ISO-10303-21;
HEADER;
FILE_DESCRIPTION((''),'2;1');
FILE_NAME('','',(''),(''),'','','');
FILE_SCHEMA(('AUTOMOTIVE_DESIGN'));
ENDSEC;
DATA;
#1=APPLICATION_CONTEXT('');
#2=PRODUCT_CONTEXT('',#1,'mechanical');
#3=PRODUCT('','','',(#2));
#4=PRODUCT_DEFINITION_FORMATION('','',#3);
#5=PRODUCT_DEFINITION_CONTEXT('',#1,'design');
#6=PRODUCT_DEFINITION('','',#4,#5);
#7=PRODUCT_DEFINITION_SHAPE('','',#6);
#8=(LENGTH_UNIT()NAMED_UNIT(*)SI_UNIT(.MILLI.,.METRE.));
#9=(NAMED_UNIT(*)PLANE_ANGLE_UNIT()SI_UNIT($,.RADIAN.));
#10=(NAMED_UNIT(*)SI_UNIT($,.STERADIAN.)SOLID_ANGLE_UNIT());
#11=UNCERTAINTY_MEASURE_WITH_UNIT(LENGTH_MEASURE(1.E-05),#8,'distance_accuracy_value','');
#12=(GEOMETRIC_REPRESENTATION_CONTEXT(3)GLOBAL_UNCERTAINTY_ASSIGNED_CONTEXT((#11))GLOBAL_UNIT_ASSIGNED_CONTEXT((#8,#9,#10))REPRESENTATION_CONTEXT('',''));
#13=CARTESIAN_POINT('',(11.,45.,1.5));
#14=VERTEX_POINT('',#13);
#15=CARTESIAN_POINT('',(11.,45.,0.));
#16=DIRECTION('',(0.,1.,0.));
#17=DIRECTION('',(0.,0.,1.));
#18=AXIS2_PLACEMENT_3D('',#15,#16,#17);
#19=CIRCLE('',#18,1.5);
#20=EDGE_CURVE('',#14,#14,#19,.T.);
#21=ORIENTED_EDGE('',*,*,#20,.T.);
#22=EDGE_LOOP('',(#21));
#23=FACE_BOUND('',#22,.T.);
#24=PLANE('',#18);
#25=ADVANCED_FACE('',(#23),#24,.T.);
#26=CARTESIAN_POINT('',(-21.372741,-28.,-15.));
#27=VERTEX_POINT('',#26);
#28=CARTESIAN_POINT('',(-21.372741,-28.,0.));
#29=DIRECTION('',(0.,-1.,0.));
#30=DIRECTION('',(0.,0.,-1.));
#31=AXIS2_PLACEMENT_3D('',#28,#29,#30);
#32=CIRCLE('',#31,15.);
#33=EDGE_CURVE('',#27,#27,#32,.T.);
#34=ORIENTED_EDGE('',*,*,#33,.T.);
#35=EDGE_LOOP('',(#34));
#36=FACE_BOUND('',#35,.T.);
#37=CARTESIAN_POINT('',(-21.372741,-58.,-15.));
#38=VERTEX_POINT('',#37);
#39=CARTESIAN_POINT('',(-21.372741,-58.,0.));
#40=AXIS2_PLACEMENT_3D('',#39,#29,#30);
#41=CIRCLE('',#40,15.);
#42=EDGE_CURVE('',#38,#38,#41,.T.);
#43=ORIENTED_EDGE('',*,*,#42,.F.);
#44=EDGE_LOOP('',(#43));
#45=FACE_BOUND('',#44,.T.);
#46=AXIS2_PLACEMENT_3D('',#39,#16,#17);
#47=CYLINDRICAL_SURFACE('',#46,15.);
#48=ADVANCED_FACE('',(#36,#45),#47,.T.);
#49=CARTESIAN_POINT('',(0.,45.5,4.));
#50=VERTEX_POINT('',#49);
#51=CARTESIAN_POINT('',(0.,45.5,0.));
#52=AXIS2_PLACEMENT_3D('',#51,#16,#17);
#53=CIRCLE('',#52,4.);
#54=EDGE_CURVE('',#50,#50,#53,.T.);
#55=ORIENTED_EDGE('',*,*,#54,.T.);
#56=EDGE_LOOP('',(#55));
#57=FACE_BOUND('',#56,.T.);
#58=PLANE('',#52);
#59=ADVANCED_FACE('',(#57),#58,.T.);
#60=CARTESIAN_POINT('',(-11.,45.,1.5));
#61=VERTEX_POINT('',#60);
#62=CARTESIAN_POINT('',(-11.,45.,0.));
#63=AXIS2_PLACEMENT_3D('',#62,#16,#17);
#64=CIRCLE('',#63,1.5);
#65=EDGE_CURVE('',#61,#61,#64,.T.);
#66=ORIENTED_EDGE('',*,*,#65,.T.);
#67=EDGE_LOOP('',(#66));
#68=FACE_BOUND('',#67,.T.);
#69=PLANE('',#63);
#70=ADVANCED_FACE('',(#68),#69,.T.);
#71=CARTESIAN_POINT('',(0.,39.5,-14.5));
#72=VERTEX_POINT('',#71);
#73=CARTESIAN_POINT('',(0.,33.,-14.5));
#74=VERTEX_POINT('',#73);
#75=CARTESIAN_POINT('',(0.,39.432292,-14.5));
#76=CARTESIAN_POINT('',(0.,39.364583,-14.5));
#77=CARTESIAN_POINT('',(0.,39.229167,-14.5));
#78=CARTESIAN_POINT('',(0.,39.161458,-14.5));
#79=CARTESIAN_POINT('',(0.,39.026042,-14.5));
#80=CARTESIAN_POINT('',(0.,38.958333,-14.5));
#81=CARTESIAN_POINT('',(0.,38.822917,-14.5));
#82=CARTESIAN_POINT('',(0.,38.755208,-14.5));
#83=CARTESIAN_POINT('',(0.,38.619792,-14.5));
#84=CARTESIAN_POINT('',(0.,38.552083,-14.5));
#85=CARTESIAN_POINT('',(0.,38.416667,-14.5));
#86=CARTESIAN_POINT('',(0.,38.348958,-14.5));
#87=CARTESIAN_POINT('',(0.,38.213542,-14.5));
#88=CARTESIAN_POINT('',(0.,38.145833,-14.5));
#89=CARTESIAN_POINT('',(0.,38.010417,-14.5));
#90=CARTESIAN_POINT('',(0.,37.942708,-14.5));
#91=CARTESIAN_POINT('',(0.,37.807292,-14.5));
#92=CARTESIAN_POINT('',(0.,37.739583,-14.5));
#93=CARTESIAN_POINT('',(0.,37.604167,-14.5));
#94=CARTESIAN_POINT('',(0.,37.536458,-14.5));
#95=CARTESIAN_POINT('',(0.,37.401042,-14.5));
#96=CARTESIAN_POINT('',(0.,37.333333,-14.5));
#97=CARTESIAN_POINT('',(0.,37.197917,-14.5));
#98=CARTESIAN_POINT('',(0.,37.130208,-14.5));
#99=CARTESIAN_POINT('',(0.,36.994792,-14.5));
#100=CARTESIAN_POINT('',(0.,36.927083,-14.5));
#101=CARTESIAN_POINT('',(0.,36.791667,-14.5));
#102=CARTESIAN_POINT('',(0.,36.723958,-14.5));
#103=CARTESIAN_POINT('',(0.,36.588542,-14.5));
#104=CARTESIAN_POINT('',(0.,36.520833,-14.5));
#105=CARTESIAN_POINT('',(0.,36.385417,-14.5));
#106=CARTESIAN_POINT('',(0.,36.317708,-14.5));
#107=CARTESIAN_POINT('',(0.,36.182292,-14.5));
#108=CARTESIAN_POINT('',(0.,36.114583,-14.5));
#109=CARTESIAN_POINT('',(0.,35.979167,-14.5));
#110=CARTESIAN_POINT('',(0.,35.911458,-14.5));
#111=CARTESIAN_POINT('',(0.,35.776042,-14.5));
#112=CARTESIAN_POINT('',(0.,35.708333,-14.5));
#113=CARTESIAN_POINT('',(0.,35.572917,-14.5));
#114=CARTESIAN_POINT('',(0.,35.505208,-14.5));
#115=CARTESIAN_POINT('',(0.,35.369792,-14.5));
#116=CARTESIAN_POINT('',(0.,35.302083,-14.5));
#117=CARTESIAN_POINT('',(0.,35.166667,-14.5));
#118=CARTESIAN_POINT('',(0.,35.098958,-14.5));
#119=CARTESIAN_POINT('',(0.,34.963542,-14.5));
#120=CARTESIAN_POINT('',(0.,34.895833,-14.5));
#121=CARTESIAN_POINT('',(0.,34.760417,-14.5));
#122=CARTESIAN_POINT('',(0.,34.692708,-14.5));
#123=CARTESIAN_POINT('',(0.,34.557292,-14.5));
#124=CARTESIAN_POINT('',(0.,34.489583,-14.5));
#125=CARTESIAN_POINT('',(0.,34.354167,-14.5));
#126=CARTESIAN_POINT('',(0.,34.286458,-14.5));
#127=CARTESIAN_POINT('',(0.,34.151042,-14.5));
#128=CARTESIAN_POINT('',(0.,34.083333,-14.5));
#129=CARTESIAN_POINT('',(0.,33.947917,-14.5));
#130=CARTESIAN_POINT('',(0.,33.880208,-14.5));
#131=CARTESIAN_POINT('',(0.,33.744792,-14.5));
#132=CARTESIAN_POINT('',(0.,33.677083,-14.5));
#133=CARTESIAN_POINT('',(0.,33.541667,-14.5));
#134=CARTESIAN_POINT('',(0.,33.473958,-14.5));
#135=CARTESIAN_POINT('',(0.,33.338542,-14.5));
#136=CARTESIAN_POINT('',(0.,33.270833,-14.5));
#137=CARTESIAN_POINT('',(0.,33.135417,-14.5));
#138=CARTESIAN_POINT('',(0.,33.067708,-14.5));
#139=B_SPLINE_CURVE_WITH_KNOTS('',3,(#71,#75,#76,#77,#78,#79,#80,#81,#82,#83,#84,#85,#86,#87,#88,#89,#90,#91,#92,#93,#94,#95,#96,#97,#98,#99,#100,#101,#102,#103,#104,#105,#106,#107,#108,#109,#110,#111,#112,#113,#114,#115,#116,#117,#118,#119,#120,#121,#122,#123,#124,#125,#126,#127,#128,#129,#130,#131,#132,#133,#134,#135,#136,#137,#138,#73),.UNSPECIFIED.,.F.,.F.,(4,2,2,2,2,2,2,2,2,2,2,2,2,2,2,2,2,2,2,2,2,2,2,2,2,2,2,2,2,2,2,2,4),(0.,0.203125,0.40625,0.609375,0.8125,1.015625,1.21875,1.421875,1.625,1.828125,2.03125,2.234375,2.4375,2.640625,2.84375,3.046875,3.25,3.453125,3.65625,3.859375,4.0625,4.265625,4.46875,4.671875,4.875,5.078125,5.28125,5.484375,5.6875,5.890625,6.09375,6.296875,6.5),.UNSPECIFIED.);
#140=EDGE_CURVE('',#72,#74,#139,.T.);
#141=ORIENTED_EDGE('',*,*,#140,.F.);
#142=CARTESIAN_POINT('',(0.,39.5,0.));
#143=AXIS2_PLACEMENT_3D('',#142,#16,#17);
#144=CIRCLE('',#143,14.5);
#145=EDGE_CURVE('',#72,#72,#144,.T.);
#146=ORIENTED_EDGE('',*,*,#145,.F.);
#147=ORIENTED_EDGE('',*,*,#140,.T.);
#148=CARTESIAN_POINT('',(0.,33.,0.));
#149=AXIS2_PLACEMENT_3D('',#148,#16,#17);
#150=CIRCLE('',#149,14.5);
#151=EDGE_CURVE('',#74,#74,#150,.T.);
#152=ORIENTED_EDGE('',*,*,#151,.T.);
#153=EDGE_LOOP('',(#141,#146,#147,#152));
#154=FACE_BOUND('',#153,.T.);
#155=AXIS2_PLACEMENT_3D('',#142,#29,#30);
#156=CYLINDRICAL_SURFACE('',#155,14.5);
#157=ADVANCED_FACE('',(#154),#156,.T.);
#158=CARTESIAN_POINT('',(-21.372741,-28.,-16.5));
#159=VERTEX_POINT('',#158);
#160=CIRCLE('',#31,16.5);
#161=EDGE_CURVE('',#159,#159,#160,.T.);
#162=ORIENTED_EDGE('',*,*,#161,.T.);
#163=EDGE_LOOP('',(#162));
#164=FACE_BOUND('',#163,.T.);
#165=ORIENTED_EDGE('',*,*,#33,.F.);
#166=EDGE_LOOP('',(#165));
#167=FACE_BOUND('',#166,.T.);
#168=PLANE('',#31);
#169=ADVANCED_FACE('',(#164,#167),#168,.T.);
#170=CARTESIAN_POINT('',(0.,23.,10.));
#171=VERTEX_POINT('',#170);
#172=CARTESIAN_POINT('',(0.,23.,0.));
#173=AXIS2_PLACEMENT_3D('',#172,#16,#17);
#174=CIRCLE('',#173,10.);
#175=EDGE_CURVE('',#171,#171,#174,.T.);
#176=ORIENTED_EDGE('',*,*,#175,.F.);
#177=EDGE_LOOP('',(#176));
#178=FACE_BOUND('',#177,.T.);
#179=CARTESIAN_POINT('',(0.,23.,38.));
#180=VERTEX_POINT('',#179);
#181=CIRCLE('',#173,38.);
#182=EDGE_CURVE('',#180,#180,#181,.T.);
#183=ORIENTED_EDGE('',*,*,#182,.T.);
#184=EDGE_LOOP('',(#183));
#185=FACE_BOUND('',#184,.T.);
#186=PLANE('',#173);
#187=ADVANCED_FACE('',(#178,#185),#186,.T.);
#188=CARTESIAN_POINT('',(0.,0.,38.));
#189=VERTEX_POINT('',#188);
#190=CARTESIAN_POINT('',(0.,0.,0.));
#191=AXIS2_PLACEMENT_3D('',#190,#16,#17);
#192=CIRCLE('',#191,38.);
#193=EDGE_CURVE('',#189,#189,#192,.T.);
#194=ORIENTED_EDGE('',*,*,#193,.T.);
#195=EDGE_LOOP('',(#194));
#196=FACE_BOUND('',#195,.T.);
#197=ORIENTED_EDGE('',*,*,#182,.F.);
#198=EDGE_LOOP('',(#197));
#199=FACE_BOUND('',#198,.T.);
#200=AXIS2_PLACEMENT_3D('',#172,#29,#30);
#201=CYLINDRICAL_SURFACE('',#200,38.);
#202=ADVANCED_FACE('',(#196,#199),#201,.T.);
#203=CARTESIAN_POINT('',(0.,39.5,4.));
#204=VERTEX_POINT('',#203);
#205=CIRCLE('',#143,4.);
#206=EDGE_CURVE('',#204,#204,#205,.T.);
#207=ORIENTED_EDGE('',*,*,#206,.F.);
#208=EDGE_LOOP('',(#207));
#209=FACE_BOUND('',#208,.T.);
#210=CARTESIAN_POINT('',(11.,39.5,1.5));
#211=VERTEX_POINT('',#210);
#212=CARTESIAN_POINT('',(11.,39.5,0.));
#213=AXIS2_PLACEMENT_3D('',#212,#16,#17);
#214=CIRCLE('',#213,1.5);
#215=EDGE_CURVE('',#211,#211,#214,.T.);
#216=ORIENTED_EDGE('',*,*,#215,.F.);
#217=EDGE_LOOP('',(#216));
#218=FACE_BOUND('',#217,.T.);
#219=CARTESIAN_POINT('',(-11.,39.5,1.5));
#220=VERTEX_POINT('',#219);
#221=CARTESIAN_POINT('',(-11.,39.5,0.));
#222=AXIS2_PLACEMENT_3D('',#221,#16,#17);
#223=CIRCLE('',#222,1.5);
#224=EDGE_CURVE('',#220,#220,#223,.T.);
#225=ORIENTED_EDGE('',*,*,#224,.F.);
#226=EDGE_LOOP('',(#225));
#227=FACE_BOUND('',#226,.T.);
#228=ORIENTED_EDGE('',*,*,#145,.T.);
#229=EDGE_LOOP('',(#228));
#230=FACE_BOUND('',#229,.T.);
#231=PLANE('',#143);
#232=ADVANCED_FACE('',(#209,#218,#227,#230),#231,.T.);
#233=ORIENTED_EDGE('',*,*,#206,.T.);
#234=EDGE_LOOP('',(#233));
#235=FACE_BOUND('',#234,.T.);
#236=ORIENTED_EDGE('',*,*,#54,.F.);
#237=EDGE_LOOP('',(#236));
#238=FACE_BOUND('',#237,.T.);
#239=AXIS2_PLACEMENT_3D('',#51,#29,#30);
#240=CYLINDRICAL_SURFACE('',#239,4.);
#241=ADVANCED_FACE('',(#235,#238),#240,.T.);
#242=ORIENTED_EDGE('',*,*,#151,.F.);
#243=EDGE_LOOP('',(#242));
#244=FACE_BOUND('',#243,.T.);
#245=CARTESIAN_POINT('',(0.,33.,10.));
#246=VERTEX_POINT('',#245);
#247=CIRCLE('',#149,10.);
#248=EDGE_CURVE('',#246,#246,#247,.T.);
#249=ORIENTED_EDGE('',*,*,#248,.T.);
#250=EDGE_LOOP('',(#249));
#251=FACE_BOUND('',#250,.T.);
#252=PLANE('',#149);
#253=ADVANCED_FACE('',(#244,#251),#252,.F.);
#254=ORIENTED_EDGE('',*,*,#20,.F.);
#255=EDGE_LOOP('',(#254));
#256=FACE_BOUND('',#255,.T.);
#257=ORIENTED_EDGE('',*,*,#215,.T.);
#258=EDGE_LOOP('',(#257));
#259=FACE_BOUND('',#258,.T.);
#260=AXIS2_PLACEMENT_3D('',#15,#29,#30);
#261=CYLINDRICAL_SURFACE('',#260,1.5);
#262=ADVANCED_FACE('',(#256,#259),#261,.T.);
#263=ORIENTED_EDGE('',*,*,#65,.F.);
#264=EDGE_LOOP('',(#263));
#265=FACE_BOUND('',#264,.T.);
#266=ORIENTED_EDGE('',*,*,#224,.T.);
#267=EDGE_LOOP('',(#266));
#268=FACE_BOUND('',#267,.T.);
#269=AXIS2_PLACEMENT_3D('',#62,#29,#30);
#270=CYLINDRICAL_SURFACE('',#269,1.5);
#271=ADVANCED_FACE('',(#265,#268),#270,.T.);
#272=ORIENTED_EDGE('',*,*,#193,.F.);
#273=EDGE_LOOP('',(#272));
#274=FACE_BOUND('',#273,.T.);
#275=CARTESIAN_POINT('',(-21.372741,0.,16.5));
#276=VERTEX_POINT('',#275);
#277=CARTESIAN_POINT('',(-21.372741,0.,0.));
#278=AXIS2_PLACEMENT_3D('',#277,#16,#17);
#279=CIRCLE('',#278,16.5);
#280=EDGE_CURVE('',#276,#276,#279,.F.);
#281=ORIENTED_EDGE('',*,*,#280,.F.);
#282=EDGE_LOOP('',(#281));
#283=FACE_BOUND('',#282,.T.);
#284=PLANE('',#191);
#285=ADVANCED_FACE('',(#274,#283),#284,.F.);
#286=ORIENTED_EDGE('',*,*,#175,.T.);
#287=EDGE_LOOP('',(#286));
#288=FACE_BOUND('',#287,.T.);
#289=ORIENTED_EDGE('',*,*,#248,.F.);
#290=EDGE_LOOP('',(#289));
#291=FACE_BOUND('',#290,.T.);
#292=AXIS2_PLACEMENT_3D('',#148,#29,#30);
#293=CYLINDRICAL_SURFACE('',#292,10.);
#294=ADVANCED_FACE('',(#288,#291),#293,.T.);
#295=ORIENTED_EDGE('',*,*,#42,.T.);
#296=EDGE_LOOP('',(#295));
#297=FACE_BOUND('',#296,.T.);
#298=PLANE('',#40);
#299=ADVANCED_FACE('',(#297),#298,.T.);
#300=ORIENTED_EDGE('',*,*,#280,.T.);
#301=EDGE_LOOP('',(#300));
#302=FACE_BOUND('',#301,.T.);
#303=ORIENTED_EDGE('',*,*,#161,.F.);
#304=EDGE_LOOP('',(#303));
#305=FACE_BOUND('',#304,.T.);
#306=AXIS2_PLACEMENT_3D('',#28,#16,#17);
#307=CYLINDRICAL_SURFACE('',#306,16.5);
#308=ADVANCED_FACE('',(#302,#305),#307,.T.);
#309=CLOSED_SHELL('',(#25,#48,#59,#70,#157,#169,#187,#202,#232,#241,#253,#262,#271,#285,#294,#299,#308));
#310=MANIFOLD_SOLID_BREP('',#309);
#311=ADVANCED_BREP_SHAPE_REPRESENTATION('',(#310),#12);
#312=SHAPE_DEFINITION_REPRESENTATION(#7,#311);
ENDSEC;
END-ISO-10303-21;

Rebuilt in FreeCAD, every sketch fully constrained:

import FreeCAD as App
import Part
import Sketcher
Q = App.Units.Quantity

doc = App.newDocument("Part")
body = doc.addObject("PartDesign::Body", "Body")

sketch1 = doc.addObject("Sketcher::SketchObject", "Sketch")
body.addObject(sketch1)
sketch1.AttachmentSupport = (doc.XZ_Plane, [""])
sketch1.MapMode = "FlatFace"
sketch1.addGeometry(Part.Circle(App.Vector(0, 0, 0), App.Vector(0, 0, 1), 38), False)
sketch1.addConstraint(Sketcher.Constraint("Coincident", 0, 3, -1, 1))
sketch1.addConstraint(Sketcher.Constraint("Diameter", 0, Q("76 mm")))
pad1 = doc.addObject("PartDesign::Pad", "Pad")
body.addObject(pad1)
pad1.Profile = sketch1
pad1.Length = 23
pad1.Reversed = True

sketch2 = doc.addObject("Sketcher::SketchObject", "Sketch001")
body.addObject(sketch2)
sketch2.AttachmentSupport = (doc.XZ_Plane, [""])
sketch2.MapMode = "FlatFace"
sketch2.AttachmentOffset = App.Placement(App.Vector(0, 0, -23), App.Rotation())
sketch2.addGeometry(Part.Circle(App.Vector(0, 0, 0), App.Vector(0, 0, 1), 10), False)
sketch2.addConstraint(Sketcher.Constraint("Coincident", 0, 3, -1, 1))
sketch2.addConstraint(Sketcher.Constraint("Diameter", 0, Q("20 mm")))
pad2 = doc.addObject("PartDesign::Pad", "Pad001")
body.addObject(pad2)
pad2.Profile = sketch2
pad2.Length = 10
pad2.Reversed = True

sketch3 = doc.addObject("Sketcher::SketchObject", "Sketch002")
body.addObject(sketch3)
sketch3.AttachmentSupport = (doc.XZ_Plane, [""])
sketch3.MapMode = "FlatFace"
sketch3.AttachmentOffset = App.Placement(App.Vector(0, 0, -33), App.Rotation())
sketch3.addGeometry(Part.Circle(App.Vector(0, 0, 0), App.Vector(0, 0, 1), 14), False)
sketch3.addConstraint(Sketcher.Constraint("Coincident", 0, 3, -1, 1))
sketch3.addConstraint(Sketcher.Constraint("Diameter", 0, Q("29 mm")))
pad3 = doc.addObject("PartDesign::Pad", "Pad002")
body.addObject(pad3)
pad3.Profile = sketch3
pad3.Length = 6.5
pad3.Reversed = True

sketch4 = doc.addObject("Sketcher::SketchObject", "Sketch003")
body.addObject(sketch4)
sketch4.AttachmentSupport = (doc.XZ_Plane, [""])
sketch4.MapMode = "FlatFace"
sketch4.AttachmentOffset = App.Placement(App.Vector(0, 0, -39.5), App.Rotation())
sketch4.addGeometry(Part.Circle(App.Vector(0, 0, 0), App.Vector(0, 0, 1), 4), False)
sketch4.addConstraint(Sketcher.Constraint("Coincident", 0, 3, -1, 1))
sketch4.addConstraint(Sketcher.Constraint("Diameter", 0, Q("8 mm")))
pad4 = doc.addObject("PartDesign::Pad", "Pad003")
body.addObject(pad4)
pad4.Profile = sketch4
pad4.Length = 6
pad4.Reversed = True

sketch5 = doc.addObject("Sketcher::SketchObject", "Sketch004")
body.addObject(sketch5)
sketch5.AttachmentSupport = (doc.XZ_Plane, [""])
sketch5.MapMode = "FlatFace"
sketch5.AttachmentOffset = App.Placement(App.Vector(0, 0, -39.5), App.Rotation())
sketch5.addGeometry(Part.Circle(App.Vector(-11, 0, 0), App.Vector(0, 0, 1), 1.5), False)
sketch5.addGeometry(Part.Circle(App.Vector(11, 0, 0), App.Vector(0, 0, 1), 1.5), False)
sketch5.addConstraint(Sketcher.Constraint("Equal", 0, 1))
sketch5.addConstraint(Sketcher.Constraint("Symmetric", 0, 3, 1, 3, -1, 1))
sketch5.addConstraint(Sketcher.Constraint("PointOnObject", 0, 3, -1))
sketch5.addConstraint(Sketcher.Constraint("Diameter", 0, Q("3 mm")))
sketch5.addConstraint(Sketcher.Constraint("DistanceX", 0, 3, -1, 1, Q("11 mm")))
pad5 = doc.addObject("PartDesign::Pad", "Pad004")
body.addObject(pad5)
pad5.Profile = sketch5
pad5.Length = 5.5
pad5.Reversed = True

sketch6 = doc.addObject("Sketcher::SketchObject", "Sketch005")
body.addObject(sketch6)
sketch6.AttachmentSupport = (doc.XZ_Plane, [""])
sketch6.MapMode = "FlatFace"
sketch6.addGeometry(Part.Circle(App.Vector(-21, 0, 0), App.Vector(0, 0, 1), 16), False)
sketch6.addConstraint(Sketcher.Constraint("PointOnObject", 0, 3, -1))
sketch6.addConstraint(Sketcher.Constraint("Diameter", 0, Q("33 mm")))
sketch6.addConstraint(Sketcher.Constraint("DistanceX", 0, 3, -1, 1, Q("21.372741 mm")))
pad6 = doc.addObject("PartDesign::Pad", "Pad005")
body.addObject(pad6)
pad6.Profile = sketch6
pad6.Length = 28

sketch7 = doc.addObject("Sketcher::SketchObject", "Sketch006")
body.addObject(sketch7)
sketch7.AttachmentSupport = (doc.XZ_Plane, [""])
sketch7.MapMode = "FlatFace"
sketch7.AttachmentOffset = App.Placement(App.Vector(0, 0, 28), App.Rotation())
sketch7.addGeometry(Part.Circle(App.Vector(-21, 0, 0), App.Vector(0, 0, 1), 15), False)
sketch7.addConstraint(Sketcher.Constraint("PointOnObject", 0, 3, -1))
sketch7.addConstraint(Sketcher.Constraint("Diameter", 0, Q("30 mm")))
sketch7.addConstraint(Sketcher.Constraint("DistanceX", 0, 3, -1, 1, Q("21.372741 mm")))
pad7 = doc.addObject("PartDesign::Pad", "Pad006")
body.addObject(pad7)
pad7.Profile = sketch7
pad7.Length = 30

doc.recompute()
